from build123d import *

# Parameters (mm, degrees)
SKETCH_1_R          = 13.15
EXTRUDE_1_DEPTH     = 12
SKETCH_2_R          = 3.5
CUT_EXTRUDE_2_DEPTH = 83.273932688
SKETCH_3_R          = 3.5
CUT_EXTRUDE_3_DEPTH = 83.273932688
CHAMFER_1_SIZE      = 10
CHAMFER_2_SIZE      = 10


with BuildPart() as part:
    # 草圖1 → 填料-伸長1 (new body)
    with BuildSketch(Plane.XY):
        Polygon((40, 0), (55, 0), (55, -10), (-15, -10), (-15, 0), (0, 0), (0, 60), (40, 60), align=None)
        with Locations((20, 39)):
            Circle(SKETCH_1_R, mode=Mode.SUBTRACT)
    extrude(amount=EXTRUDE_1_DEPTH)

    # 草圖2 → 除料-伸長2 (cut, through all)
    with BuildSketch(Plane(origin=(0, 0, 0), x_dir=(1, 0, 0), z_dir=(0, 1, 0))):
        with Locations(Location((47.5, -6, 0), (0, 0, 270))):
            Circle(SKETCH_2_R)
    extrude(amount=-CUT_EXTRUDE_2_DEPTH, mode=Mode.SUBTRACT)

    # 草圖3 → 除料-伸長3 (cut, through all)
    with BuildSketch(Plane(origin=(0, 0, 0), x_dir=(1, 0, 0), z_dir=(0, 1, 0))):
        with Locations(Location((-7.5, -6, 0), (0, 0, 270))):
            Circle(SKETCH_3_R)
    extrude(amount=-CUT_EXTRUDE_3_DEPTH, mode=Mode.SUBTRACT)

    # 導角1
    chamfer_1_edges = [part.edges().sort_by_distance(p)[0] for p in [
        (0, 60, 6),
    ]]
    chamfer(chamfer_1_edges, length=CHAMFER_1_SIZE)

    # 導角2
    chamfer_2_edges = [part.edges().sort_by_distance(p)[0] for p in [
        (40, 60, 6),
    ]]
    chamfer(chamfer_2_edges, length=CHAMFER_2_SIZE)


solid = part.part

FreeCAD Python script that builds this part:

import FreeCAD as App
import Part
import Sketcher

V = App.Vector
Q = App.Units.Quantity


def edges_at(feature, points):
    """Names of the edges that pass closest to the given points."""
    edges = feature.Shape.Edges
    near = lambda p: min(range(len(edges)), key=lambda i: edges[i].distToShape(Part.Vertex(*p))[0])
    return sorted({f"Edge{near(p) + 1}" for p in points})


def add_polygon(sketch, points):
    """Adds a closed chain of lines whose ends are joined by coincident constraints."""
    first, n = sketch.GeometryCount, len(points)
    for a, b in zip(points, points[1:] + points[:1]):
        sketch.addGeometry(Part.LineSegment(App.Vector(*a, 0), App.Vector(*b, 0)), False)
    for i in range(n):
        sketch.addConstraint(Sketcher.Constraint("Coincident", first + i, 2, first + (i + 1) % n, 1))

doc = App.newDocument("Part")
body = doc.addObject("PartDesign::Body", "Body")

# Sketch on XY plane
sketch1 = body.newObject("Sketcher::SketchObject", "Sketch")
sketch1.AttachmentSupport = (doc.getObject("XY_Plane"), [""])
sketch1.MapMode = "FlatFace"
add_polygon(sketch1, [(55, 0), (40, 0), (40, 60), (0, 60), (0, 0), (-15, 0), (-15, -10), (55, -10)])  # lines 0-7
sketch1.addGeometry(Part.Circle(V(20, 39, 0), V(0, 0, 1), 13.15), False)  # 8
sketch1.addConstraint(Sketcher.Constraint("Horizontal", 0))
sketch1.addConstraint(Sketcher.Constraint("Vertical", 1))
sketch1.addConstraint(Sketcher.Constraint("Horizontal", 2))
sketch1.addConstraint(Sketcher.Constraint("Vertical", 3))
sketch1.addConstraint(Sketcher.Constraint("Horizontal", 4))
sketch1.addConstraint(Sketcher.Constraint("Vertical", 5))
sketch1.addConstraint(Sketcher.Constraint("Horizontal", 6))
sketch1.addConstraint(Sketcher.Constraint("Vertical", 7))
sketch1.addConstraint(Sketcher.Constraint("Coincident", 3, 2, -1, 1))
sketch1.addConstraint(Sketcher.Constraint("PointOnObject", 0, 2, -1))
sketch1.addConstraint(Sketcher.Constraint("Equal", 0, 4))
sketch1.addConstraint(Sketcher.Constraint("Diameter", 8, Q("26.3 mm")))
sketch1.addConstraint(Sketcher.Constraint("DistanceX", 0, 2, 0, 1, Q("15 mm")))
sketch1.addConstraint(Sketcher.Constraint("DistanceX", 2, 2, 2, 1, Q("40 mm")))
sketch1.addConstraint(Sketcher.Constraint("DistanceY", 1, 1, 1, 2, Q("60 mm")))
sketch1.addConstraint(Sketcher.Constraint("DistanceY", 5, 2, 5, 1, Q("10 mm")))
sketch1.addConstraint(Sketcher.Constraint("DistanceX", -1, 1, 8, 3, Q("20 mm")))
sketch1.addConstraint(Sketcher.Constraint("DistanceY", -1, 1, 8, 3, Q("39 mm")))
pad1 = body.newObject("PartDesign::Pad", "Pad")
pad1.Profile = sketch1
pad1.Length = 12

# Sketch on XZ plane
sketch2 = body.newObject("Sketcher::SketchObject", "Sketch001")
sketch2.AttachmentSupport = (doc.getObject("XZ_Plane"), [""])
sketch2.MapMode = "FlatFace"
sketch2.addGeometry(Part.Circle(V(47.5, 6, 0), V(0, 0, 1), 3.5), False)
sketch2.addConstraint(Sketcher.Constraint("Diameter", 0, Q("7 mm")))
sketch2.addConstraint(Sketcher.Constraint("DistanceY", -1, 1, 0, 3, Q("6 mm")))
sketch2.addConstraint(Sketcher.Constraint("DistanceX", -1, 1, 0, 3, Q("47.5 mm")))
pocket1 = body.newObject("PartDesign::Pocket", "Pocket")
pocket1.Profile = sketch2
pocket1.Type = "ThroughAll"
pocket1.Reversed = True

# Sketch on XZ plane
sketch3 = body.newObject("Sketcher::SketchObject", "Sketch002")
sketch3.AttachmentSupport = (doc.getObject("XZ_Plane"), [""])
sketch3.MapMode = "FlatFace"
sketch3.addGeometry(Part.Circle(V(-7.5, 6, 0), V(0, 0, 1), 3.5), False)
sketch3.addConstraint(Sketcher.Constraint("Diameter", 0, Q("7 mm")))
sketch3.addConstraint(Sketcher.Constraint("DistanceY", -1, 1, 0, 3, Q("6 mm")))
sketch3.addConstraint(Sketcher.Constraint("DistanceX", 0, 3, -1, 1, Q("7.5 mm")))
pocket2 = body.newObject("PartDesign::Pocket", "Pocket001")
pocket2.Profile = sketch3
pocket2.Type = "ThroughAll"
pocket2.Reversed = True
doc.recompute()

chamfer = body.newObject("PartDesign::Chamfer", "Chamfer")
chamfer.Base = (pocket2, edges_at(pocket2, [(0, 60, 6)]))
chamfer.Size = 10
doc.recompute()

chamfer2 = body.newObject("PartDesign::Chamfer", "Chamfer001")
chamfer2.Base = (chamfer, edges_at(chamfer, [(40, 60, 6)]))
chamfer2.Size = 10

doc.recompute()
